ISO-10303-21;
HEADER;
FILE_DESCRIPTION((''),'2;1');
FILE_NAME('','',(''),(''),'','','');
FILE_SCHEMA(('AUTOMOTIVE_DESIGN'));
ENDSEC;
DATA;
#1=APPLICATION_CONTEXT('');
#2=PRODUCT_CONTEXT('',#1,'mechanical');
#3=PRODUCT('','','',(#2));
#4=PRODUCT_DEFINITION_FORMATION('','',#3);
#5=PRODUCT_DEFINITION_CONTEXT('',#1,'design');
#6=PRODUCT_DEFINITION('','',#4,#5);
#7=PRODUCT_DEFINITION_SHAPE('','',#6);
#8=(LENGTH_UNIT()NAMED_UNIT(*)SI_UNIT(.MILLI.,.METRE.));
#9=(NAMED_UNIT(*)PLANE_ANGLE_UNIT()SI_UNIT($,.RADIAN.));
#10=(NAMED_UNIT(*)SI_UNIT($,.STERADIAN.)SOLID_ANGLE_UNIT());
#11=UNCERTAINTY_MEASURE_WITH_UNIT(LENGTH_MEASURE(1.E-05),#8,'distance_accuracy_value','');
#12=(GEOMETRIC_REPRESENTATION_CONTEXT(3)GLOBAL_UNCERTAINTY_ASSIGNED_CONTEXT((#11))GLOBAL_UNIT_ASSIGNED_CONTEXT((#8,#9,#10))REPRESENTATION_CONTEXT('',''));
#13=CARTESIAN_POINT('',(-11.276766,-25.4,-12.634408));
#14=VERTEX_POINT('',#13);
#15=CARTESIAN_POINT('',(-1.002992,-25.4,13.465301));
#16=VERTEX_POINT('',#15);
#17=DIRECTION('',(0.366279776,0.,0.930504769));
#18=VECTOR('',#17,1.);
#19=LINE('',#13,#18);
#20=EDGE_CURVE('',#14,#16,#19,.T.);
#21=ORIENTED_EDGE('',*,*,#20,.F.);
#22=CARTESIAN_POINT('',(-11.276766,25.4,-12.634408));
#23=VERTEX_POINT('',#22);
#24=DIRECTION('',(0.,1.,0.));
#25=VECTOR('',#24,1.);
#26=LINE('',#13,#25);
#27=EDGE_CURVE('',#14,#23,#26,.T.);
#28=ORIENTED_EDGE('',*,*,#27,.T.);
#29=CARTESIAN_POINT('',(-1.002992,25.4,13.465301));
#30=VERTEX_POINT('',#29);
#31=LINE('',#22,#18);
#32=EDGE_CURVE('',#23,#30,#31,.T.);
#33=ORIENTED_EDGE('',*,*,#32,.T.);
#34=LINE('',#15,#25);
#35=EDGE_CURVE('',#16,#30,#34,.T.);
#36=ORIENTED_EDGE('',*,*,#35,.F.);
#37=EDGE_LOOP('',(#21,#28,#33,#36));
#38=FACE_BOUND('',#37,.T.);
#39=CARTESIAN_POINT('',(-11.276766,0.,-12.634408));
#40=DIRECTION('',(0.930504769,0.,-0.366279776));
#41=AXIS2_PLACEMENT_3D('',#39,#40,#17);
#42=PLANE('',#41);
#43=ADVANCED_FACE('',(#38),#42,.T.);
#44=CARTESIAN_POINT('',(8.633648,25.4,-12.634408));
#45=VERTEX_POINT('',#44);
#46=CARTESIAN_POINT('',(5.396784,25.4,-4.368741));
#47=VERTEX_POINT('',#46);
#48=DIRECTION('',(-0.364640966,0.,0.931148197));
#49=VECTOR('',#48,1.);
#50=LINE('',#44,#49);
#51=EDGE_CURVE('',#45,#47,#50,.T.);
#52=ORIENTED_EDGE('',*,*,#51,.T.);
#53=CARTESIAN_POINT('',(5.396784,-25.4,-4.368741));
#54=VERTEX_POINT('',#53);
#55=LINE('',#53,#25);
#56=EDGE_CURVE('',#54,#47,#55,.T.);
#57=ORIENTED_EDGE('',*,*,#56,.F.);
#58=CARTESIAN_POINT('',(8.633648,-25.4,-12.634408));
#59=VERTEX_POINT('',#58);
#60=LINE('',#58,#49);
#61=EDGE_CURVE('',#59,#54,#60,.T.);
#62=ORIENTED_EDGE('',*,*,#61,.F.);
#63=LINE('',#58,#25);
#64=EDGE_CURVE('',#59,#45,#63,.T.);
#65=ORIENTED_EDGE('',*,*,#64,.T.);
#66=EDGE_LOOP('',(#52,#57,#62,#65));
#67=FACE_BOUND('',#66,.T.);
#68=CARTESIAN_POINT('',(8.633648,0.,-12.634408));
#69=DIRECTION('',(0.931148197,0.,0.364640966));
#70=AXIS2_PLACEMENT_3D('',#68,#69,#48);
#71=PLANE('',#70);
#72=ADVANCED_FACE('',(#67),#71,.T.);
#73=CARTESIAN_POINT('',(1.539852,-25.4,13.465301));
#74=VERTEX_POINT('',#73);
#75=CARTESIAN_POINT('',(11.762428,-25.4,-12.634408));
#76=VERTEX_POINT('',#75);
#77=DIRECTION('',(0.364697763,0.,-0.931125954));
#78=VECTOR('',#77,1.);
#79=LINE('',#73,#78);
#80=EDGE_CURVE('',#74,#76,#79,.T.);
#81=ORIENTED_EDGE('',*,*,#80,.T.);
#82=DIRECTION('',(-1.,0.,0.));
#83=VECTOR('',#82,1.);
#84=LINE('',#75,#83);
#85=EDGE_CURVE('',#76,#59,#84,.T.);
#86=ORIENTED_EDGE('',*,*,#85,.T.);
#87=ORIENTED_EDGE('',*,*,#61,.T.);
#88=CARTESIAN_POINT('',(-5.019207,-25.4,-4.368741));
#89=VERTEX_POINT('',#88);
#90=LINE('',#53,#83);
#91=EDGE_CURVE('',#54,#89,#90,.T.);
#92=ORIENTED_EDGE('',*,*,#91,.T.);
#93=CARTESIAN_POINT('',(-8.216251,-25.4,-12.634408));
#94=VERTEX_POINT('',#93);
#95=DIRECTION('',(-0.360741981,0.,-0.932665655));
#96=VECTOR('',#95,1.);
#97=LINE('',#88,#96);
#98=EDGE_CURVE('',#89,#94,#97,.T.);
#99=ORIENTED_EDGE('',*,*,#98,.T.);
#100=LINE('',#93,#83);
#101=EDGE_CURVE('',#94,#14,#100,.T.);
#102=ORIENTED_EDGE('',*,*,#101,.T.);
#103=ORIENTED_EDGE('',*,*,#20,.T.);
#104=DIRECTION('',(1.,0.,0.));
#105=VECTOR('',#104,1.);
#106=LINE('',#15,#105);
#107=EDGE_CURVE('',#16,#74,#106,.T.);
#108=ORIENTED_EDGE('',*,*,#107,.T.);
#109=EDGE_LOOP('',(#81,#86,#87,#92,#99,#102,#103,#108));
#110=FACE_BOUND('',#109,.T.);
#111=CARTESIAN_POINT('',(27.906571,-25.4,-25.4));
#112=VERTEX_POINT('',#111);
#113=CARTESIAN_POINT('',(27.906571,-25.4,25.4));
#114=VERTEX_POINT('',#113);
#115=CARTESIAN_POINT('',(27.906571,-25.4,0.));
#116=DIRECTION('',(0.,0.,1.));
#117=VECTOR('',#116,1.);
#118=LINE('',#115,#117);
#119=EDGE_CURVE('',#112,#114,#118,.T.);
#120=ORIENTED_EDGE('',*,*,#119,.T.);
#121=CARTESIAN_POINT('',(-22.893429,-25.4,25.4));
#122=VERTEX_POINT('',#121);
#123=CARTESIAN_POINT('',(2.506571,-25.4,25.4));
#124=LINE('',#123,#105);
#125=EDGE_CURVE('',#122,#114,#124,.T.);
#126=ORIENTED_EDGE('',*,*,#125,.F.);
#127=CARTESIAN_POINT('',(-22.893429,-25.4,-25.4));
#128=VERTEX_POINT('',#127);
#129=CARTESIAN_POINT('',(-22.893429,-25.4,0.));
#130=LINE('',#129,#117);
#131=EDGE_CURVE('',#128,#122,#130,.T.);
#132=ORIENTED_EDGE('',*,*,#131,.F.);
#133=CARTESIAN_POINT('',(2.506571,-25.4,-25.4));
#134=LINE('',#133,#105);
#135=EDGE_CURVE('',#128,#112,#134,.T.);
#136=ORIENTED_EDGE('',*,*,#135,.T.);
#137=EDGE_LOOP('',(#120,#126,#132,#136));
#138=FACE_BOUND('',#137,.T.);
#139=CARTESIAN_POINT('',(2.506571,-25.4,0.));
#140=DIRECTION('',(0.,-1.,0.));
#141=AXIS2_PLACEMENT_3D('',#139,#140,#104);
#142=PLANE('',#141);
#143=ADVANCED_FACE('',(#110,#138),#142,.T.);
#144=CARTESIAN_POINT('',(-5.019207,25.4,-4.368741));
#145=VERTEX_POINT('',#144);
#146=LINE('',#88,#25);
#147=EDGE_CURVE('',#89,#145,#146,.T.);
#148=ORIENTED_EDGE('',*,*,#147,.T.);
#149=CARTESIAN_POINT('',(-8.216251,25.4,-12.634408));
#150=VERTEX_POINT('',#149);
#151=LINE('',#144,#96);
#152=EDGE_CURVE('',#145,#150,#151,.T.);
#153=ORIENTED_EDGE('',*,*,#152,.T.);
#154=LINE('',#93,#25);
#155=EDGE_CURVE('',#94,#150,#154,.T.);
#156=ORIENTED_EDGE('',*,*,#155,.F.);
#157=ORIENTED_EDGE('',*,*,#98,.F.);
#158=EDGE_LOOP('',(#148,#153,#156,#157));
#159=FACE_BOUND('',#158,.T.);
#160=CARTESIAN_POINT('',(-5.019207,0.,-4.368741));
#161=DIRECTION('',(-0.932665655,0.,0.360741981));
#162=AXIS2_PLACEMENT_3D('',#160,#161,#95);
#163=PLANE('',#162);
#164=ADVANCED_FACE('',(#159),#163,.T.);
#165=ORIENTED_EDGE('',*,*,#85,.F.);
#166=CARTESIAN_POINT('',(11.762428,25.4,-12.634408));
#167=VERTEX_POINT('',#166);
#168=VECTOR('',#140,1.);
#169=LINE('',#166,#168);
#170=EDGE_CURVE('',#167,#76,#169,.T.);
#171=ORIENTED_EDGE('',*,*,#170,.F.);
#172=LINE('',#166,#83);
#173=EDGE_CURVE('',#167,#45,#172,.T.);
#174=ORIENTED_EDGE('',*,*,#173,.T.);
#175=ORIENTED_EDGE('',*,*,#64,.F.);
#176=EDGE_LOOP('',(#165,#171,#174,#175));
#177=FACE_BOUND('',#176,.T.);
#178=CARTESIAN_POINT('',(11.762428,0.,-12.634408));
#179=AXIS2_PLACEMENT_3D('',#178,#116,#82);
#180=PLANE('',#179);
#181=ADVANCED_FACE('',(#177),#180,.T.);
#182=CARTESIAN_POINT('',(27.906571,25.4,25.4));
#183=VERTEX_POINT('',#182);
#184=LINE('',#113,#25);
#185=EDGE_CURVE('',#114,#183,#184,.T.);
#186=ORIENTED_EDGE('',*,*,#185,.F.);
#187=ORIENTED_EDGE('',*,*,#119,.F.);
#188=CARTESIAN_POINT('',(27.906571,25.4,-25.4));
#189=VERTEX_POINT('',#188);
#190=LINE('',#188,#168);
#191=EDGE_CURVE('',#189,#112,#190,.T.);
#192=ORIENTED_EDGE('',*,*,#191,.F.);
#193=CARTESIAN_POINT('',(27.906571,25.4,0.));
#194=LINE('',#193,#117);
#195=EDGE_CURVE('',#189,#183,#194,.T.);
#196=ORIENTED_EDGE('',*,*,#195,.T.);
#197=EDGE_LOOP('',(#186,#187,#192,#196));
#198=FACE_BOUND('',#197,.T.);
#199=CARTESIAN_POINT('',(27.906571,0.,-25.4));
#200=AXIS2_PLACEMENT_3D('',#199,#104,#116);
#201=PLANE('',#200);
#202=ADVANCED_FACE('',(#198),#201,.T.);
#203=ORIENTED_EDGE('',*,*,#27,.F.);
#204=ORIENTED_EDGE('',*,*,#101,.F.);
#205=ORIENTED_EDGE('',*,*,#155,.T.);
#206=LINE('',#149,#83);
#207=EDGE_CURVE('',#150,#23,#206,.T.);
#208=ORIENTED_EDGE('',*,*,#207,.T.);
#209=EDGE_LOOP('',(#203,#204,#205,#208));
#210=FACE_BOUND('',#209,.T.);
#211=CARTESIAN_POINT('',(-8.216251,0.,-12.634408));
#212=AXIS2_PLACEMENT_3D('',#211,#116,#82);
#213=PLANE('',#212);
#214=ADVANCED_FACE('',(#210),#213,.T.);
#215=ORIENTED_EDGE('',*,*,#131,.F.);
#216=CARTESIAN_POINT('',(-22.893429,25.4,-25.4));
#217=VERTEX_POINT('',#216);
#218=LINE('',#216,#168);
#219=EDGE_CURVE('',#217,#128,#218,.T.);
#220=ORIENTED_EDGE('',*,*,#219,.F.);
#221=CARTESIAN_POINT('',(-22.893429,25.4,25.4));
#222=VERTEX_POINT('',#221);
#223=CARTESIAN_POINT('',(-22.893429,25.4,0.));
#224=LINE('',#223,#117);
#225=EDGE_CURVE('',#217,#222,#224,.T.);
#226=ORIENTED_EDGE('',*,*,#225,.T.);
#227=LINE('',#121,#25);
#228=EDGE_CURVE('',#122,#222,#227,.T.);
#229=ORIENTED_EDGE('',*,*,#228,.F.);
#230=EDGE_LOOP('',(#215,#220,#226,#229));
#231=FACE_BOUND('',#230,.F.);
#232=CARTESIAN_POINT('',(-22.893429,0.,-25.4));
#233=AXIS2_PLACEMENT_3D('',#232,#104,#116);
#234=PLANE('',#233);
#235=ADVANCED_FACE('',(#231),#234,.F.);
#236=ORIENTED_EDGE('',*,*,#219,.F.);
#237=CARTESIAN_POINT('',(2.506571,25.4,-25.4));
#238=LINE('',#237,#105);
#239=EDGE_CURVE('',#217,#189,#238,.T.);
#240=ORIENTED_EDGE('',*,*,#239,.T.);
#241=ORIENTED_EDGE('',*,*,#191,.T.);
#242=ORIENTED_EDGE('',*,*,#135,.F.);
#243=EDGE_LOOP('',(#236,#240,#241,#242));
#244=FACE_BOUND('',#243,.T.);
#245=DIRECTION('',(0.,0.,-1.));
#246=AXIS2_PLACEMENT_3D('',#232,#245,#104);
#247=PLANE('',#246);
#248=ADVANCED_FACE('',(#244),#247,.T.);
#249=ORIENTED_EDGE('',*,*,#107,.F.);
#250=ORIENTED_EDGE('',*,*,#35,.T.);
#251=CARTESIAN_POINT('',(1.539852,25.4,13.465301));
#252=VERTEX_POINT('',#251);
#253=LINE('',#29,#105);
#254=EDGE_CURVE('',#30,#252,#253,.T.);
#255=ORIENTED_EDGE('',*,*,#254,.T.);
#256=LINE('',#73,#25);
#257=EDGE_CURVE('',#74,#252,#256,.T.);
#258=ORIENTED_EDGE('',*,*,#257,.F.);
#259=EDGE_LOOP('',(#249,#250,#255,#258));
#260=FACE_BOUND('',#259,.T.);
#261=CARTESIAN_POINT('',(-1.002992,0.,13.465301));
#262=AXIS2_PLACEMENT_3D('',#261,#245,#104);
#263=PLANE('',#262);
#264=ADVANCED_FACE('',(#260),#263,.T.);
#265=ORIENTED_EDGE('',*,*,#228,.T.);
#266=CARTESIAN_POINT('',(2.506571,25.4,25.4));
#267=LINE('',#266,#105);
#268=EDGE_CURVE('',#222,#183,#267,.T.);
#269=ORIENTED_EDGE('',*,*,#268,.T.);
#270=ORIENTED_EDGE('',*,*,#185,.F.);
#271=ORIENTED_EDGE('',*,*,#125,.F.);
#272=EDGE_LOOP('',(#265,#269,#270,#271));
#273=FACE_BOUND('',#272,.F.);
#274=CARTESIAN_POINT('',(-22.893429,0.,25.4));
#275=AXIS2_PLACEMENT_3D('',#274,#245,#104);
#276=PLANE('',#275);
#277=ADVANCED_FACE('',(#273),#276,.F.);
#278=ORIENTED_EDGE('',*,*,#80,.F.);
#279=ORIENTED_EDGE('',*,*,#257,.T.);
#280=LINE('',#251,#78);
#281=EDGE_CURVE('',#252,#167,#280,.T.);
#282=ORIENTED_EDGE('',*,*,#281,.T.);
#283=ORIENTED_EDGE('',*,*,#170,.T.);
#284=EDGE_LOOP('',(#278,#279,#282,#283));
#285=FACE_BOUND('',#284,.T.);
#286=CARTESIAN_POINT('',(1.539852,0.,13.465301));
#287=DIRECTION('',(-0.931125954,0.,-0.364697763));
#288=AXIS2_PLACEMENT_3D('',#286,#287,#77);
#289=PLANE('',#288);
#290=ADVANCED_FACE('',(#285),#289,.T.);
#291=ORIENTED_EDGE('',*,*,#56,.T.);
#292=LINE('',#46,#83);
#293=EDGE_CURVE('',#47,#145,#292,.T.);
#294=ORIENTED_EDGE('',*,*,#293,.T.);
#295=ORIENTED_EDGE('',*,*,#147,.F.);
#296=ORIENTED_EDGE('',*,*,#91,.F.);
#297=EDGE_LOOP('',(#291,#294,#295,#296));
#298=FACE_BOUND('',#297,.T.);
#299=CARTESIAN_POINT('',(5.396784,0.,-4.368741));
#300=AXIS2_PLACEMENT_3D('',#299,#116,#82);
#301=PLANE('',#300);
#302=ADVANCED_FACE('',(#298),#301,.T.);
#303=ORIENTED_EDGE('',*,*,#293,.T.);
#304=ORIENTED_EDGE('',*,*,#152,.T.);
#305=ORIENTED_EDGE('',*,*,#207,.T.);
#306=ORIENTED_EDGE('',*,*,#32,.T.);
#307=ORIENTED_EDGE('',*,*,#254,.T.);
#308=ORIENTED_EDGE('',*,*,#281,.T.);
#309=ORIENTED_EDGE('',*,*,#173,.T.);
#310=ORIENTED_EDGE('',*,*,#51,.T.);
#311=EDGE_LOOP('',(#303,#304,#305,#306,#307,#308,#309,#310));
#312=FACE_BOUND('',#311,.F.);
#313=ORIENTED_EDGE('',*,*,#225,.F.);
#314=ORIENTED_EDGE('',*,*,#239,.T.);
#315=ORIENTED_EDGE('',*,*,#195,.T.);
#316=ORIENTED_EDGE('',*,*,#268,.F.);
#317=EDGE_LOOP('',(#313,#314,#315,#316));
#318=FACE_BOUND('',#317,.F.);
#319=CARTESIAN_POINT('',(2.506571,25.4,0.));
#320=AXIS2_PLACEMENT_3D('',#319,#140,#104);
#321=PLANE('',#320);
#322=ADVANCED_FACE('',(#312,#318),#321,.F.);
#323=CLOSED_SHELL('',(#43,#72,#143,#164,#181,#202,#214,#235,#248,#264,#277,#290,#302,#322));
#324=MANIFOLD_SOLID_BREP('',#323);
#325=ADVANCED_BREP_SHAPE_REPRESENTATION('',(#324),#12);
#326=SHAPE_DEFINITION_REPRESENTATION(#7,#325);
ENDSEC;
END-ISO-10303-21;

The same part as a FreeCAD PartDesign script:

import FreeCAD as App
import Part
import Sketcher
from FreeCAD import Vector
Q = App.Units.Quantity


def add_polygon(sketch, points):
    """Adds a closed chain of lines whose ends are joined by coincident constraints."""
    first, n = sketch.GeometryCount, len(points)
    for a, b in zip(points, points[1:] + points[:1]):
        sketch.addGeometry(Part.LineSegment(App.Vector(*a, 0), App.Vector(*b, 0)), False)
    for i in range(n):
        sketch.addConstraint(Sketcher.Constraint("Coincident", first + i, 2, first + (i + 1) % n, 1))

doc = App.newDocument("Part")
body = doc.addObject("PartDesign::Body", "Body")

sketch1 = body.newObject("Sketcher::SketchObject", "Sketch")
sketch1.AttachmentSupport = (doc.getObject("XZ_Plane"), [""])
sketch1.MapMode = "FlatFace"
add_polygon(sketch1, [(-22.9, 25.4), (-22.9, -25.4), (27.9, -25.4), (27.9, 25.4)])
add_polygon(sketch1, [(1.5, 13.5), (11.8, -12.6), (8.6, -12.6), (5.4, -4.4), (-5, -4.4), (-8.2, -12.6), (-11.3, -12.6), (-1, 13.5)])
sketch1.addConstraint(Sketcher.Constraint("Vertical", 0))
sketch1.addConstraint(Sketcher.Constraint("Horizontal", 1))
sketch1.addConstraint(Sketcher.Constraint("Vertical", 2))
sketch1.addConstraint(Sketcher.Constraint("Horizontal", 3))
sketch1.addConstraint(Sketcher.Constraint("Horizontal", 5))
sketch1.addConstraint(Sketcher.Constraint("Horizontal", 7))
sketch1.addConstraint(Sketcher.Constraint("Horizontal", 9))
sketch1.addConstraint(Sketcher.Constraint("Horizontal", 11))
sketch1.addConstraint(Sketcher.Constraint("Horizontal", 5, 2, 8, 2))
sketch1.addConstraint(Sketcher.Constraint("Equal", 3, 0))
sketch1.addConstraint(Sketcher.Constraint("DistanceX", 1, 1, 1, 2, Q("2 in")))
sketch1.addConstraint(Sketcher.Constraint("DistanceY", 0, 2, -1, 1, Q("1 in")))
sketch1.addConstraint(Sketcher.Constraint("DistanceX", 5, 2, 5, 1, Q("3.128779 mm")))
sketch1.addConstraint(Sketcher.Constraint("DistanceX", 7, 2, 7, 1, Q("10.415991 mm")))
sketch1.addConstraint(Sketcher.Constraint("DistanceY", -1, 1, 10, 2, Q("13.465301 mm")))
sketch1.addConstraint(Sketcher.Constraint("DistanceX", 8, 2, 5, 2, Q("16.849899 mm")))
sketch1.addConstraint(Sketcher.Constraint("Distance", 8, Q("8.862411 mm")))
sketch1.addConstraint(Sketcher.Constraint("Distance", 10, Q("28.048979 mm")))
sketch1.addConstraint(Sketcher.Constraint("DistanceX", 9, 2, 9, 1, Q("3.060515 mm")))
sketch1.addConstraint(Sketcher.Constraint("DistanceX", 11, 1, 11, 2, Q("2.542844 mm")))
sketch1.addConstraint(Sketcher.Constraint("DistanceX", 0, 2, -1, 1, Q("22.893429 mm")))
sketch1.addConstraint(Sketcher.Constraint("DistanceX", -1, 1, 5, 2, Q("8.633648 mm")))
sketch1.addConstraint(Sketcher.Constraint("DistanceY", 6, 2, -1, 1, Q("4.368741 mm")))
sketch1.addConstraint(Sketcher.Constraint("DistanceX", -1, 1, 11, 2, Q("1.539852 mm")))
pad1 = body.newObject("PartDesign::Pad", "Pad")
pad1.Profile = sketch1
pad1.Length = Q("2 in")
pad1.Midplane = True

doc.recompute()
